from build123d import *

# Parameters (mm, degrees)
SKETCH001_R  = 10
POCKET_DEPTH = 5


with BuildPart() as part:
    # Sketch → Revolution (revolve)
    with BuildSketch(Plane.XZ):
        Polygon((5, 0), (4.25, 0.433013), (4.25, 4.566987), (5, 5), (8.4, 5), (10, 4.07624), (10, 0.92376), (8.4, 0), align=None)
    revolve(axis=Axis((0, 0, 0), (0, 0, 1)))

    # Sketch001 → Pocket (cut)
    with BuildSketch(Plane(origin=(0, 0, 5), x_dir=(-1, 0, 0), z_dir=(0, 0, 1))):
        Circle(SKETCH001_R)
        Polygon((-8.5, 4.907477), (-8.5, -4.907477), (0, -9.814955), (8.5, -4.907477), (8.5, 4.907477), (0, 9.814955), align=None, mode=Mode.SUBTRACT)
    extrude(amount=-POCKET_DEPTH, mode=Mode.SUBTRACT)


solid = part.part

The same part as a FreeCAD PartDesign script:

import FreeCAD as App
import Part
import Sketcher
Q = App.Units.Quantity


def add_polygon(sketch, points):
    """Adds a closed chain of lines whose ends are joined by coincident constraints."""
    first, n = sketch.GeometryCount, len(points)
    for a, b in zip(points, points[1:] + points[:1]):
        sketch.addGeometry(Part.LineSegment(App.Vector(*a, 0), App.Vector(*b, 0)), False)
    for i in range(n):
        sketch.addConstraint(Sketcher.Constraint("Coincident", first + i, 2, first + (i + 1) % n, 1))

doc = App.newDocument("Part")
body = doc.addObject("PartDesign::Body", "Body")

# Sketch on XZ plane
sketch1 = doc.addObject("Sketcher::SketchObject", "Sketch")
body.addObject(sketch1)
sketch1.AttachmentSupport = (doc.XZ_Plane, [""])
sketch1.MapMode = "FlatFace"
add_polygon(sketch1, [(4.2, 0.4), (5, 0), (8.4, 0), (10, 0.9), (10, 4.1), (8.4, 5), (5, 5), (4.2, 4.6)])  # lines 0-7
sketch1.addConstraint(Sketcher.Constraint("Horizontal", 1))
sketch1.addConstraint(Sketcher.Constraint("Vertical", 3))
sketch1.addConstraint(Sketcher.Constraint("Horizontal", 5))
sketch1.addConstraint(Sketcher.Constraint("Vertical", 7))
sketch1.addConstraint(Sketcher.Constraint("PointOnObject", 0, 2, -1))
sketch1.addConstraint(Sketcher.Constraint("Parallel", 0, 4))
sketch1.addConstraint(Sketcher.Constraint("Parallel", 2, 6))
sketch1.addConstraint(Sketcher.Constraint("Vertical", 1, 2, 4, 2))
sketch1.addConstraint(Sketcher.Constraint("Vertical", 0, 2, 5, 2))
sketch1.addConstraint(Sketcher.Constraint("Equal", 2, 4))
sketch1.addConstraint(Sketcher.Constraint("Angle", 0, Q("-30.000017 deg")))
sketch1.addConstraint(Sketcher.Constraint("DistanceX", 1, 1, 1, 2, Q("3.4 mm")))
sketch1.addConstraint(Sketcher.Constraint("DistanceX", -1, 1, 0, 2, Q("5 mm")))
sketch1.addConstraint(Sketcher.Constraint("DistanceX", -1, 1, 2, 2, Q("10 mm")))
sketch1.addConstraint(Sketcher.Constraint("DistanceY", -1, 1, 4, 2, Q("5 mm")))
sketch1.addConstraint(Sketcher.Constraint("DistanceX", -1, 1, 6, 2, Q("4.25 mm")))
revolution = doc.addObject("PartDesign::Revolution", "Revolution")
body.addObject(revolution)
revolution.Profile = sketch1
revolution.ReferenceAxis = (sketch1, ["V_Axis"])
revolution.Angle = 360

# Sketch on XY plane
sketch2 = doc.addObject("Sketcher::SketchObject", "Sketch001")
body.addObject(sketch2)
sketch2.AttachmentSupport = (doc.XY_Plane, [""])
sketch2.MapMode = "FlatFace"
sketch2.AttachmentOffset = App.Placement(App.Vector(0, 0, 5), App.Rotation())
sketch2.addGeometry(Part.Circle(App.Vector(0, 0, 0), App.Vector(0, 0, 1), 10), False)  # 0
add_polygon(sketch2, [(8, 5), (8, -5), (0, -10), (-8, -5), (-8, 5), (0, 10)])  # lines 1-6
sketch2.addConstraint(Sketcher.Constraint("Vertical", 1))
sketch2.addConstraint(Sketcher.Constraint("Vertical", 4))
sketch2.addConstraint(Sketcher.Constraint("Coincident", 0, 3, -1, 1))
sketch2.addConstraint(Sketcher.Constraint("Symmetric", 1, 2, 4, 2, -1, 1))
sketch2.addConstraint(Sketcher.Constraint("Symmetric", 2, 2, 5, 2, -1, 1))
sketch2.addConstraint(Sketcher.Constraint("PointOnObject", 2, 2, -2))
sketch2.addConstraint(Sketcher.Constraint("Parallel", 3, 6))
sketch2.addConstraint(Sketcher.Constraint("Horizontal", 1, 2, 3, 2))
sketch2.addConstraint(Sketcher.Constraint("Diameter", 0, Q("20 mm")))
sketch2.addConstraint(Sketcher.Constraint("Angle", 2, Q("-149.999996 deg")))
sketch2.addConstraint(Sketcher.Constraint("DistanceX", 3, 2, 1, 2, Q("17 mm")))
sketch2.addConstraint(Sketcher.Constraint("DistanceY", 1, 2, 1, 1, Q("9.814954 mm")))
pocket1 = doc.addObject("PartDesign::Pocket", "Pocket")
body.addObject(pocket1)
pocket1.Profile = sketch2
pocket1.Length = 5

doc.recompute()
